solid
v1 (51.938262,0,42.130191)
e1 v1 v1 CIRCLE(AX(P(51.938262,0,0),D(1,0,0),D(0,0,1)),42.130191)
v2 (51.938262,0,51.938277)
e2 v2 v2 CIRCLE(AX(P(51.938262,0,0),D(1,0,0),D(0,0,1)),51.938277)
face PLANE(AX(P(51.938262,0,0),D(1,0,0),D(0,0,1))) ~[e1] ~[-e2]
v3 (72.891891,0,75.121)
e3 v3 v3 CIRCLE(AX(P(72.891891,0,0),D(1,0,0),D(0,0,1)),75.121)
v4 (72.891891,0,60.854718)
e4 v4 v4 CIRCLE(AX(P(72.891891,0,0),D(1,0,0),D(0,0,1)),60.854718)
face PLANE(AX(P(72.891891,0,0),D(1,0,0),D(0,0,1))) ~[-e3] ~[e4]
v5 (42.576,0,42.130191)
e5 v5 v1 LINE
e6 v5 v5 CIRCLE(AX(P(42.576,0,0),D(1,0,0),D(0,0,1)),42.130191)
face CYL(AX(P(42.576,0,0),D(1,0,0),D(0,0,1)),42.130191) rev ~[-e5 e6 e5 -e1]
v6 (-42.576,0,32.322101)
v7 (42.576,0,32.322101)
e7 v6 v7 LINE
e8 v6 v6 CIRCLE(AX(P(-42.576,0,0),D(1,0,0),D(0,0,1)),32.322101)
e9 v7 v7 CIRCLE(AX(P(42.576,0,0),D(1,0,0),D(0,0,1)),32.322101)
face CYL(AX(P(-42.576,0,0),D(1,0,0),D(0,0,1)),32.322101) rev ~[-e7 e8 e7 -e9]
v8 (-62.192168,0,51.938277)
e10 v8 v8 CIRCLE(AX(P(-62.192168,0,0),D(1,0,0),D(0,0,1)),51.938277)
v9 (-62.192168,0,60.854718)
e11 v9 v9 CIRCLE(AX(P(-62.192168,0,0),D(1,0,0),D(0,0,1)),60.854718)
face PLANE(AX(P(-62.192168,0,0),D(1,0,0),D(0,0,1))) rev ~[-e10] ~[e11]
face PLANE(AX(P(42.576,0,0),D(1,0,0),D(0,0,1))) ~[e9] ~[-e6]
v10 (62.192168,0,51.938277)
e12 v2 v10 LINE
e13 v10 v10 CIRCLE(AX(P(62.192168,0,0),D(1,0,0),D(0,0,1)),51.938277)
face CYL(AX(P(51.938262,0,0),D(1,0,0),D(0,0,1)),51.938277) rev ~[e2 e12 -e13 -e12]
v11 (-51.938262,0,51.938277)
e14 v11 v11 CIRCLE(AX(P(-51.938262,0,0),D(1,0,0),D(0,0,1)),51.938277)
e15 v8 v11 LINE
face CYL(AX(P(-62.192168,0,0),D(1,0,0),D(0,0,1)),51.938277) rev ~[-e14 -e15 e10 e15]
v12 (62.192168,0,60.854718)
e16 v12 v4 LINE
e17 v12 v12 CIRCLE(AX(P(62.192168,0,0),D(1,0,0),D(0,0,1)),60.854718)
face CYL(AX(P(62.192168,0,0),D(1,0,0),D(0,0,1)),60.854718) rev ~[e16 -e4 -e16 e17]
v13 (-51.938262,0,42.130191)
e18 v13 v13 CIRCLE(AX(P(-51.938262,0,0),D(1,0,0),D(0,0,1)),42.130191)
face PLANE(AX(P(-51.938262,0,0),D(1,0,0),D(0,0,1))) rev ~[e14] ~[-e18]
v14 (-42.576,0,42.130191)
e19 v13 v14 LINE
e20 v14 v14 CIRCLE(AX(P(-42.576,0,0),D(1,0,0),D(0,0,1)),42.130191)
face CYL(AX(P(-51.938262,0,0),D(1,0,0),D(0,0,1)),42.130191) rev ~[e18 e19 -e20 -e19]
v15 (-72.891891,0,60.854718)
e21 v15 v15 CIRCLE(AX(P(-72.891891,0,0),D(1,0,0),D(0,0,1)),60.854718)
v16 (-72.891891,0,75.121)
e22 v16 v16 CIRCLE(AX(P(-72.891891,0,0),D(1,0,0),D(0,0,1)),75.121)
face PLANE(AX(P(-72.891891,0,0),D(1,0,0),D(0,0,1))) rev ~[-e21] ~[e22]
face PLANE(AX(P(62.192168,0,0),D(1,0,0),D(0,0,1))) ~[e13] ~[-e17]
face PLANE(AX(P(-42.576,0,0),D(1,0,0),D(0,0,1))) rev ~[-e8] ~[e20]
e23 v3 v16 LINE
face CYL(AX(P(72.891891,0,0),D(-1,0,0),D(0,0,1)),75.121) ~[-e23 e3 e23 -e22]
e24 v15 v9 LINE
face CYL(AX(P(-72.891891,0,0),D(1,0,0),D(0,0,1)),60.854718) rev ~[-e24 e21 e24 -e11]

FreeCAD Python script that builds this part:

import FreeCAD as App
import Part
import Sketcher
from FreeCAD import Vector


def add_polygon(sketch, points):
    """Adds a closed chain of lines whose ends are joined by coincident constraints."""
    first, n = sketch.GeometryCount, len(points)
    for a, b in zip(points, points[1:] + points[:1]):
        sketch.addGeometry(Part.LineSegment(App.Vector(*a, 0), App.Vector(*b, 0)), False)
    for i in range(n):
        sketch.addConstraint(Sketcher.Constraint("Coincident", first + i, 2, first + (i + 1) % n, 1))

doc = App.newDocument("Part")
body = doc.addObject("PartDesign::Body", "Body")

# Sketch on XZ plane
sketch1 = doc.addObject("Sketcher::SketchObject", "Sketch")
body.addObject(sketch1)
sketch1.AttachmentSupport = (doc.XZ_Plane, [""])
sketch1.MapMode = "FlatFace"
add_polygon(sketch1, [(-43, 32), (43, 32), (43, 42), (52, 42), (52, 52), (62, 52), (62, 61), (73, 61), (73, 75), (-73, 75), (-73, 61), (-62, 61), (-62, 52), (-52, 52), (-52, 42), (-43, 42)])  # lines 0-15
sketch1.addConstraint([
    Sketcher.Constraint("Horizontal", 0),
    Sketcher.Constraint("Vertical", 1),
    Sketcher.Constraint("Horizontal", 2),
    Sketcher.Constraint("Vertical", 3),
    Sketcher.Constraint("Horizontal", 4),
    Sketcher.Constraint("Vertical", 5),
    Sketcher.Constraint("Horizontal", 6),
    Sketcher.Constraint("Vertical", 7),
    Sketcher.Constraint("Horizontal", 8),
    Sketcher.Constraint("Vertical", 9),
    Sketcher.Constraint("Horizontal", 10),
    Sketcher.Constraint("Vertical", 11),
    Sketcher.Constraint("Horizontal", 12),
    Sketcher.Constraint("Vertical", 13),
    Sketcher.Constraint("Horizontal", 14),
    Sketcher.Constraint("Vertical", 15),
    Sketcher.Constraint("Symmetric", 6, 2, 9, 2, -2),
    Sketcher.Constraint("Symmetric", 4, 2, 11, 2, -2),
    Sketcher.Constraint("Symmetric", 2, 2, 13, 2, -2),
    Sketcher.Constraint("Equal", 2, 14),
    Sketcher.Constraint("DistanceX", 0, 1, 0, 2, 85.152),
    Sketcher.Constraint("DistanceY", -1, 1, 7, 2, 75.121),
    Sketcher.Constraint("DistanceX", 8, 2, 8, 1, 145.783782),
    Sketcher.Constraint("DistanceY", 1, 1, 1, 2, 9.80809),
    Sketcher.Constraint("DistanceY", 5, 1, 5, 2, 8.916441),
    Sketcher.Constraint("DistanceY", 7, 1, 7, 2, 14.266282),
    Sketcher.Constraint("DistanceY", -1, 1, 0, 2, 32.322101),
    Sketcher.Constraint("DistanceX", 2, 1, 2, 2, 9.362262),
    Sketcher.Constraint("DistanceX", 4, 1, 4, 2, 10.253906),
])
revolution = doc.addObject("PartDesign::Revolution", "Revolution")
body.addObject(revolution)
revolution.Profile = sketch1
revolution.ReferenceAxis = (sketch1, ["H_Axis"])
revolution.Angle = 360

doc.recompute()
